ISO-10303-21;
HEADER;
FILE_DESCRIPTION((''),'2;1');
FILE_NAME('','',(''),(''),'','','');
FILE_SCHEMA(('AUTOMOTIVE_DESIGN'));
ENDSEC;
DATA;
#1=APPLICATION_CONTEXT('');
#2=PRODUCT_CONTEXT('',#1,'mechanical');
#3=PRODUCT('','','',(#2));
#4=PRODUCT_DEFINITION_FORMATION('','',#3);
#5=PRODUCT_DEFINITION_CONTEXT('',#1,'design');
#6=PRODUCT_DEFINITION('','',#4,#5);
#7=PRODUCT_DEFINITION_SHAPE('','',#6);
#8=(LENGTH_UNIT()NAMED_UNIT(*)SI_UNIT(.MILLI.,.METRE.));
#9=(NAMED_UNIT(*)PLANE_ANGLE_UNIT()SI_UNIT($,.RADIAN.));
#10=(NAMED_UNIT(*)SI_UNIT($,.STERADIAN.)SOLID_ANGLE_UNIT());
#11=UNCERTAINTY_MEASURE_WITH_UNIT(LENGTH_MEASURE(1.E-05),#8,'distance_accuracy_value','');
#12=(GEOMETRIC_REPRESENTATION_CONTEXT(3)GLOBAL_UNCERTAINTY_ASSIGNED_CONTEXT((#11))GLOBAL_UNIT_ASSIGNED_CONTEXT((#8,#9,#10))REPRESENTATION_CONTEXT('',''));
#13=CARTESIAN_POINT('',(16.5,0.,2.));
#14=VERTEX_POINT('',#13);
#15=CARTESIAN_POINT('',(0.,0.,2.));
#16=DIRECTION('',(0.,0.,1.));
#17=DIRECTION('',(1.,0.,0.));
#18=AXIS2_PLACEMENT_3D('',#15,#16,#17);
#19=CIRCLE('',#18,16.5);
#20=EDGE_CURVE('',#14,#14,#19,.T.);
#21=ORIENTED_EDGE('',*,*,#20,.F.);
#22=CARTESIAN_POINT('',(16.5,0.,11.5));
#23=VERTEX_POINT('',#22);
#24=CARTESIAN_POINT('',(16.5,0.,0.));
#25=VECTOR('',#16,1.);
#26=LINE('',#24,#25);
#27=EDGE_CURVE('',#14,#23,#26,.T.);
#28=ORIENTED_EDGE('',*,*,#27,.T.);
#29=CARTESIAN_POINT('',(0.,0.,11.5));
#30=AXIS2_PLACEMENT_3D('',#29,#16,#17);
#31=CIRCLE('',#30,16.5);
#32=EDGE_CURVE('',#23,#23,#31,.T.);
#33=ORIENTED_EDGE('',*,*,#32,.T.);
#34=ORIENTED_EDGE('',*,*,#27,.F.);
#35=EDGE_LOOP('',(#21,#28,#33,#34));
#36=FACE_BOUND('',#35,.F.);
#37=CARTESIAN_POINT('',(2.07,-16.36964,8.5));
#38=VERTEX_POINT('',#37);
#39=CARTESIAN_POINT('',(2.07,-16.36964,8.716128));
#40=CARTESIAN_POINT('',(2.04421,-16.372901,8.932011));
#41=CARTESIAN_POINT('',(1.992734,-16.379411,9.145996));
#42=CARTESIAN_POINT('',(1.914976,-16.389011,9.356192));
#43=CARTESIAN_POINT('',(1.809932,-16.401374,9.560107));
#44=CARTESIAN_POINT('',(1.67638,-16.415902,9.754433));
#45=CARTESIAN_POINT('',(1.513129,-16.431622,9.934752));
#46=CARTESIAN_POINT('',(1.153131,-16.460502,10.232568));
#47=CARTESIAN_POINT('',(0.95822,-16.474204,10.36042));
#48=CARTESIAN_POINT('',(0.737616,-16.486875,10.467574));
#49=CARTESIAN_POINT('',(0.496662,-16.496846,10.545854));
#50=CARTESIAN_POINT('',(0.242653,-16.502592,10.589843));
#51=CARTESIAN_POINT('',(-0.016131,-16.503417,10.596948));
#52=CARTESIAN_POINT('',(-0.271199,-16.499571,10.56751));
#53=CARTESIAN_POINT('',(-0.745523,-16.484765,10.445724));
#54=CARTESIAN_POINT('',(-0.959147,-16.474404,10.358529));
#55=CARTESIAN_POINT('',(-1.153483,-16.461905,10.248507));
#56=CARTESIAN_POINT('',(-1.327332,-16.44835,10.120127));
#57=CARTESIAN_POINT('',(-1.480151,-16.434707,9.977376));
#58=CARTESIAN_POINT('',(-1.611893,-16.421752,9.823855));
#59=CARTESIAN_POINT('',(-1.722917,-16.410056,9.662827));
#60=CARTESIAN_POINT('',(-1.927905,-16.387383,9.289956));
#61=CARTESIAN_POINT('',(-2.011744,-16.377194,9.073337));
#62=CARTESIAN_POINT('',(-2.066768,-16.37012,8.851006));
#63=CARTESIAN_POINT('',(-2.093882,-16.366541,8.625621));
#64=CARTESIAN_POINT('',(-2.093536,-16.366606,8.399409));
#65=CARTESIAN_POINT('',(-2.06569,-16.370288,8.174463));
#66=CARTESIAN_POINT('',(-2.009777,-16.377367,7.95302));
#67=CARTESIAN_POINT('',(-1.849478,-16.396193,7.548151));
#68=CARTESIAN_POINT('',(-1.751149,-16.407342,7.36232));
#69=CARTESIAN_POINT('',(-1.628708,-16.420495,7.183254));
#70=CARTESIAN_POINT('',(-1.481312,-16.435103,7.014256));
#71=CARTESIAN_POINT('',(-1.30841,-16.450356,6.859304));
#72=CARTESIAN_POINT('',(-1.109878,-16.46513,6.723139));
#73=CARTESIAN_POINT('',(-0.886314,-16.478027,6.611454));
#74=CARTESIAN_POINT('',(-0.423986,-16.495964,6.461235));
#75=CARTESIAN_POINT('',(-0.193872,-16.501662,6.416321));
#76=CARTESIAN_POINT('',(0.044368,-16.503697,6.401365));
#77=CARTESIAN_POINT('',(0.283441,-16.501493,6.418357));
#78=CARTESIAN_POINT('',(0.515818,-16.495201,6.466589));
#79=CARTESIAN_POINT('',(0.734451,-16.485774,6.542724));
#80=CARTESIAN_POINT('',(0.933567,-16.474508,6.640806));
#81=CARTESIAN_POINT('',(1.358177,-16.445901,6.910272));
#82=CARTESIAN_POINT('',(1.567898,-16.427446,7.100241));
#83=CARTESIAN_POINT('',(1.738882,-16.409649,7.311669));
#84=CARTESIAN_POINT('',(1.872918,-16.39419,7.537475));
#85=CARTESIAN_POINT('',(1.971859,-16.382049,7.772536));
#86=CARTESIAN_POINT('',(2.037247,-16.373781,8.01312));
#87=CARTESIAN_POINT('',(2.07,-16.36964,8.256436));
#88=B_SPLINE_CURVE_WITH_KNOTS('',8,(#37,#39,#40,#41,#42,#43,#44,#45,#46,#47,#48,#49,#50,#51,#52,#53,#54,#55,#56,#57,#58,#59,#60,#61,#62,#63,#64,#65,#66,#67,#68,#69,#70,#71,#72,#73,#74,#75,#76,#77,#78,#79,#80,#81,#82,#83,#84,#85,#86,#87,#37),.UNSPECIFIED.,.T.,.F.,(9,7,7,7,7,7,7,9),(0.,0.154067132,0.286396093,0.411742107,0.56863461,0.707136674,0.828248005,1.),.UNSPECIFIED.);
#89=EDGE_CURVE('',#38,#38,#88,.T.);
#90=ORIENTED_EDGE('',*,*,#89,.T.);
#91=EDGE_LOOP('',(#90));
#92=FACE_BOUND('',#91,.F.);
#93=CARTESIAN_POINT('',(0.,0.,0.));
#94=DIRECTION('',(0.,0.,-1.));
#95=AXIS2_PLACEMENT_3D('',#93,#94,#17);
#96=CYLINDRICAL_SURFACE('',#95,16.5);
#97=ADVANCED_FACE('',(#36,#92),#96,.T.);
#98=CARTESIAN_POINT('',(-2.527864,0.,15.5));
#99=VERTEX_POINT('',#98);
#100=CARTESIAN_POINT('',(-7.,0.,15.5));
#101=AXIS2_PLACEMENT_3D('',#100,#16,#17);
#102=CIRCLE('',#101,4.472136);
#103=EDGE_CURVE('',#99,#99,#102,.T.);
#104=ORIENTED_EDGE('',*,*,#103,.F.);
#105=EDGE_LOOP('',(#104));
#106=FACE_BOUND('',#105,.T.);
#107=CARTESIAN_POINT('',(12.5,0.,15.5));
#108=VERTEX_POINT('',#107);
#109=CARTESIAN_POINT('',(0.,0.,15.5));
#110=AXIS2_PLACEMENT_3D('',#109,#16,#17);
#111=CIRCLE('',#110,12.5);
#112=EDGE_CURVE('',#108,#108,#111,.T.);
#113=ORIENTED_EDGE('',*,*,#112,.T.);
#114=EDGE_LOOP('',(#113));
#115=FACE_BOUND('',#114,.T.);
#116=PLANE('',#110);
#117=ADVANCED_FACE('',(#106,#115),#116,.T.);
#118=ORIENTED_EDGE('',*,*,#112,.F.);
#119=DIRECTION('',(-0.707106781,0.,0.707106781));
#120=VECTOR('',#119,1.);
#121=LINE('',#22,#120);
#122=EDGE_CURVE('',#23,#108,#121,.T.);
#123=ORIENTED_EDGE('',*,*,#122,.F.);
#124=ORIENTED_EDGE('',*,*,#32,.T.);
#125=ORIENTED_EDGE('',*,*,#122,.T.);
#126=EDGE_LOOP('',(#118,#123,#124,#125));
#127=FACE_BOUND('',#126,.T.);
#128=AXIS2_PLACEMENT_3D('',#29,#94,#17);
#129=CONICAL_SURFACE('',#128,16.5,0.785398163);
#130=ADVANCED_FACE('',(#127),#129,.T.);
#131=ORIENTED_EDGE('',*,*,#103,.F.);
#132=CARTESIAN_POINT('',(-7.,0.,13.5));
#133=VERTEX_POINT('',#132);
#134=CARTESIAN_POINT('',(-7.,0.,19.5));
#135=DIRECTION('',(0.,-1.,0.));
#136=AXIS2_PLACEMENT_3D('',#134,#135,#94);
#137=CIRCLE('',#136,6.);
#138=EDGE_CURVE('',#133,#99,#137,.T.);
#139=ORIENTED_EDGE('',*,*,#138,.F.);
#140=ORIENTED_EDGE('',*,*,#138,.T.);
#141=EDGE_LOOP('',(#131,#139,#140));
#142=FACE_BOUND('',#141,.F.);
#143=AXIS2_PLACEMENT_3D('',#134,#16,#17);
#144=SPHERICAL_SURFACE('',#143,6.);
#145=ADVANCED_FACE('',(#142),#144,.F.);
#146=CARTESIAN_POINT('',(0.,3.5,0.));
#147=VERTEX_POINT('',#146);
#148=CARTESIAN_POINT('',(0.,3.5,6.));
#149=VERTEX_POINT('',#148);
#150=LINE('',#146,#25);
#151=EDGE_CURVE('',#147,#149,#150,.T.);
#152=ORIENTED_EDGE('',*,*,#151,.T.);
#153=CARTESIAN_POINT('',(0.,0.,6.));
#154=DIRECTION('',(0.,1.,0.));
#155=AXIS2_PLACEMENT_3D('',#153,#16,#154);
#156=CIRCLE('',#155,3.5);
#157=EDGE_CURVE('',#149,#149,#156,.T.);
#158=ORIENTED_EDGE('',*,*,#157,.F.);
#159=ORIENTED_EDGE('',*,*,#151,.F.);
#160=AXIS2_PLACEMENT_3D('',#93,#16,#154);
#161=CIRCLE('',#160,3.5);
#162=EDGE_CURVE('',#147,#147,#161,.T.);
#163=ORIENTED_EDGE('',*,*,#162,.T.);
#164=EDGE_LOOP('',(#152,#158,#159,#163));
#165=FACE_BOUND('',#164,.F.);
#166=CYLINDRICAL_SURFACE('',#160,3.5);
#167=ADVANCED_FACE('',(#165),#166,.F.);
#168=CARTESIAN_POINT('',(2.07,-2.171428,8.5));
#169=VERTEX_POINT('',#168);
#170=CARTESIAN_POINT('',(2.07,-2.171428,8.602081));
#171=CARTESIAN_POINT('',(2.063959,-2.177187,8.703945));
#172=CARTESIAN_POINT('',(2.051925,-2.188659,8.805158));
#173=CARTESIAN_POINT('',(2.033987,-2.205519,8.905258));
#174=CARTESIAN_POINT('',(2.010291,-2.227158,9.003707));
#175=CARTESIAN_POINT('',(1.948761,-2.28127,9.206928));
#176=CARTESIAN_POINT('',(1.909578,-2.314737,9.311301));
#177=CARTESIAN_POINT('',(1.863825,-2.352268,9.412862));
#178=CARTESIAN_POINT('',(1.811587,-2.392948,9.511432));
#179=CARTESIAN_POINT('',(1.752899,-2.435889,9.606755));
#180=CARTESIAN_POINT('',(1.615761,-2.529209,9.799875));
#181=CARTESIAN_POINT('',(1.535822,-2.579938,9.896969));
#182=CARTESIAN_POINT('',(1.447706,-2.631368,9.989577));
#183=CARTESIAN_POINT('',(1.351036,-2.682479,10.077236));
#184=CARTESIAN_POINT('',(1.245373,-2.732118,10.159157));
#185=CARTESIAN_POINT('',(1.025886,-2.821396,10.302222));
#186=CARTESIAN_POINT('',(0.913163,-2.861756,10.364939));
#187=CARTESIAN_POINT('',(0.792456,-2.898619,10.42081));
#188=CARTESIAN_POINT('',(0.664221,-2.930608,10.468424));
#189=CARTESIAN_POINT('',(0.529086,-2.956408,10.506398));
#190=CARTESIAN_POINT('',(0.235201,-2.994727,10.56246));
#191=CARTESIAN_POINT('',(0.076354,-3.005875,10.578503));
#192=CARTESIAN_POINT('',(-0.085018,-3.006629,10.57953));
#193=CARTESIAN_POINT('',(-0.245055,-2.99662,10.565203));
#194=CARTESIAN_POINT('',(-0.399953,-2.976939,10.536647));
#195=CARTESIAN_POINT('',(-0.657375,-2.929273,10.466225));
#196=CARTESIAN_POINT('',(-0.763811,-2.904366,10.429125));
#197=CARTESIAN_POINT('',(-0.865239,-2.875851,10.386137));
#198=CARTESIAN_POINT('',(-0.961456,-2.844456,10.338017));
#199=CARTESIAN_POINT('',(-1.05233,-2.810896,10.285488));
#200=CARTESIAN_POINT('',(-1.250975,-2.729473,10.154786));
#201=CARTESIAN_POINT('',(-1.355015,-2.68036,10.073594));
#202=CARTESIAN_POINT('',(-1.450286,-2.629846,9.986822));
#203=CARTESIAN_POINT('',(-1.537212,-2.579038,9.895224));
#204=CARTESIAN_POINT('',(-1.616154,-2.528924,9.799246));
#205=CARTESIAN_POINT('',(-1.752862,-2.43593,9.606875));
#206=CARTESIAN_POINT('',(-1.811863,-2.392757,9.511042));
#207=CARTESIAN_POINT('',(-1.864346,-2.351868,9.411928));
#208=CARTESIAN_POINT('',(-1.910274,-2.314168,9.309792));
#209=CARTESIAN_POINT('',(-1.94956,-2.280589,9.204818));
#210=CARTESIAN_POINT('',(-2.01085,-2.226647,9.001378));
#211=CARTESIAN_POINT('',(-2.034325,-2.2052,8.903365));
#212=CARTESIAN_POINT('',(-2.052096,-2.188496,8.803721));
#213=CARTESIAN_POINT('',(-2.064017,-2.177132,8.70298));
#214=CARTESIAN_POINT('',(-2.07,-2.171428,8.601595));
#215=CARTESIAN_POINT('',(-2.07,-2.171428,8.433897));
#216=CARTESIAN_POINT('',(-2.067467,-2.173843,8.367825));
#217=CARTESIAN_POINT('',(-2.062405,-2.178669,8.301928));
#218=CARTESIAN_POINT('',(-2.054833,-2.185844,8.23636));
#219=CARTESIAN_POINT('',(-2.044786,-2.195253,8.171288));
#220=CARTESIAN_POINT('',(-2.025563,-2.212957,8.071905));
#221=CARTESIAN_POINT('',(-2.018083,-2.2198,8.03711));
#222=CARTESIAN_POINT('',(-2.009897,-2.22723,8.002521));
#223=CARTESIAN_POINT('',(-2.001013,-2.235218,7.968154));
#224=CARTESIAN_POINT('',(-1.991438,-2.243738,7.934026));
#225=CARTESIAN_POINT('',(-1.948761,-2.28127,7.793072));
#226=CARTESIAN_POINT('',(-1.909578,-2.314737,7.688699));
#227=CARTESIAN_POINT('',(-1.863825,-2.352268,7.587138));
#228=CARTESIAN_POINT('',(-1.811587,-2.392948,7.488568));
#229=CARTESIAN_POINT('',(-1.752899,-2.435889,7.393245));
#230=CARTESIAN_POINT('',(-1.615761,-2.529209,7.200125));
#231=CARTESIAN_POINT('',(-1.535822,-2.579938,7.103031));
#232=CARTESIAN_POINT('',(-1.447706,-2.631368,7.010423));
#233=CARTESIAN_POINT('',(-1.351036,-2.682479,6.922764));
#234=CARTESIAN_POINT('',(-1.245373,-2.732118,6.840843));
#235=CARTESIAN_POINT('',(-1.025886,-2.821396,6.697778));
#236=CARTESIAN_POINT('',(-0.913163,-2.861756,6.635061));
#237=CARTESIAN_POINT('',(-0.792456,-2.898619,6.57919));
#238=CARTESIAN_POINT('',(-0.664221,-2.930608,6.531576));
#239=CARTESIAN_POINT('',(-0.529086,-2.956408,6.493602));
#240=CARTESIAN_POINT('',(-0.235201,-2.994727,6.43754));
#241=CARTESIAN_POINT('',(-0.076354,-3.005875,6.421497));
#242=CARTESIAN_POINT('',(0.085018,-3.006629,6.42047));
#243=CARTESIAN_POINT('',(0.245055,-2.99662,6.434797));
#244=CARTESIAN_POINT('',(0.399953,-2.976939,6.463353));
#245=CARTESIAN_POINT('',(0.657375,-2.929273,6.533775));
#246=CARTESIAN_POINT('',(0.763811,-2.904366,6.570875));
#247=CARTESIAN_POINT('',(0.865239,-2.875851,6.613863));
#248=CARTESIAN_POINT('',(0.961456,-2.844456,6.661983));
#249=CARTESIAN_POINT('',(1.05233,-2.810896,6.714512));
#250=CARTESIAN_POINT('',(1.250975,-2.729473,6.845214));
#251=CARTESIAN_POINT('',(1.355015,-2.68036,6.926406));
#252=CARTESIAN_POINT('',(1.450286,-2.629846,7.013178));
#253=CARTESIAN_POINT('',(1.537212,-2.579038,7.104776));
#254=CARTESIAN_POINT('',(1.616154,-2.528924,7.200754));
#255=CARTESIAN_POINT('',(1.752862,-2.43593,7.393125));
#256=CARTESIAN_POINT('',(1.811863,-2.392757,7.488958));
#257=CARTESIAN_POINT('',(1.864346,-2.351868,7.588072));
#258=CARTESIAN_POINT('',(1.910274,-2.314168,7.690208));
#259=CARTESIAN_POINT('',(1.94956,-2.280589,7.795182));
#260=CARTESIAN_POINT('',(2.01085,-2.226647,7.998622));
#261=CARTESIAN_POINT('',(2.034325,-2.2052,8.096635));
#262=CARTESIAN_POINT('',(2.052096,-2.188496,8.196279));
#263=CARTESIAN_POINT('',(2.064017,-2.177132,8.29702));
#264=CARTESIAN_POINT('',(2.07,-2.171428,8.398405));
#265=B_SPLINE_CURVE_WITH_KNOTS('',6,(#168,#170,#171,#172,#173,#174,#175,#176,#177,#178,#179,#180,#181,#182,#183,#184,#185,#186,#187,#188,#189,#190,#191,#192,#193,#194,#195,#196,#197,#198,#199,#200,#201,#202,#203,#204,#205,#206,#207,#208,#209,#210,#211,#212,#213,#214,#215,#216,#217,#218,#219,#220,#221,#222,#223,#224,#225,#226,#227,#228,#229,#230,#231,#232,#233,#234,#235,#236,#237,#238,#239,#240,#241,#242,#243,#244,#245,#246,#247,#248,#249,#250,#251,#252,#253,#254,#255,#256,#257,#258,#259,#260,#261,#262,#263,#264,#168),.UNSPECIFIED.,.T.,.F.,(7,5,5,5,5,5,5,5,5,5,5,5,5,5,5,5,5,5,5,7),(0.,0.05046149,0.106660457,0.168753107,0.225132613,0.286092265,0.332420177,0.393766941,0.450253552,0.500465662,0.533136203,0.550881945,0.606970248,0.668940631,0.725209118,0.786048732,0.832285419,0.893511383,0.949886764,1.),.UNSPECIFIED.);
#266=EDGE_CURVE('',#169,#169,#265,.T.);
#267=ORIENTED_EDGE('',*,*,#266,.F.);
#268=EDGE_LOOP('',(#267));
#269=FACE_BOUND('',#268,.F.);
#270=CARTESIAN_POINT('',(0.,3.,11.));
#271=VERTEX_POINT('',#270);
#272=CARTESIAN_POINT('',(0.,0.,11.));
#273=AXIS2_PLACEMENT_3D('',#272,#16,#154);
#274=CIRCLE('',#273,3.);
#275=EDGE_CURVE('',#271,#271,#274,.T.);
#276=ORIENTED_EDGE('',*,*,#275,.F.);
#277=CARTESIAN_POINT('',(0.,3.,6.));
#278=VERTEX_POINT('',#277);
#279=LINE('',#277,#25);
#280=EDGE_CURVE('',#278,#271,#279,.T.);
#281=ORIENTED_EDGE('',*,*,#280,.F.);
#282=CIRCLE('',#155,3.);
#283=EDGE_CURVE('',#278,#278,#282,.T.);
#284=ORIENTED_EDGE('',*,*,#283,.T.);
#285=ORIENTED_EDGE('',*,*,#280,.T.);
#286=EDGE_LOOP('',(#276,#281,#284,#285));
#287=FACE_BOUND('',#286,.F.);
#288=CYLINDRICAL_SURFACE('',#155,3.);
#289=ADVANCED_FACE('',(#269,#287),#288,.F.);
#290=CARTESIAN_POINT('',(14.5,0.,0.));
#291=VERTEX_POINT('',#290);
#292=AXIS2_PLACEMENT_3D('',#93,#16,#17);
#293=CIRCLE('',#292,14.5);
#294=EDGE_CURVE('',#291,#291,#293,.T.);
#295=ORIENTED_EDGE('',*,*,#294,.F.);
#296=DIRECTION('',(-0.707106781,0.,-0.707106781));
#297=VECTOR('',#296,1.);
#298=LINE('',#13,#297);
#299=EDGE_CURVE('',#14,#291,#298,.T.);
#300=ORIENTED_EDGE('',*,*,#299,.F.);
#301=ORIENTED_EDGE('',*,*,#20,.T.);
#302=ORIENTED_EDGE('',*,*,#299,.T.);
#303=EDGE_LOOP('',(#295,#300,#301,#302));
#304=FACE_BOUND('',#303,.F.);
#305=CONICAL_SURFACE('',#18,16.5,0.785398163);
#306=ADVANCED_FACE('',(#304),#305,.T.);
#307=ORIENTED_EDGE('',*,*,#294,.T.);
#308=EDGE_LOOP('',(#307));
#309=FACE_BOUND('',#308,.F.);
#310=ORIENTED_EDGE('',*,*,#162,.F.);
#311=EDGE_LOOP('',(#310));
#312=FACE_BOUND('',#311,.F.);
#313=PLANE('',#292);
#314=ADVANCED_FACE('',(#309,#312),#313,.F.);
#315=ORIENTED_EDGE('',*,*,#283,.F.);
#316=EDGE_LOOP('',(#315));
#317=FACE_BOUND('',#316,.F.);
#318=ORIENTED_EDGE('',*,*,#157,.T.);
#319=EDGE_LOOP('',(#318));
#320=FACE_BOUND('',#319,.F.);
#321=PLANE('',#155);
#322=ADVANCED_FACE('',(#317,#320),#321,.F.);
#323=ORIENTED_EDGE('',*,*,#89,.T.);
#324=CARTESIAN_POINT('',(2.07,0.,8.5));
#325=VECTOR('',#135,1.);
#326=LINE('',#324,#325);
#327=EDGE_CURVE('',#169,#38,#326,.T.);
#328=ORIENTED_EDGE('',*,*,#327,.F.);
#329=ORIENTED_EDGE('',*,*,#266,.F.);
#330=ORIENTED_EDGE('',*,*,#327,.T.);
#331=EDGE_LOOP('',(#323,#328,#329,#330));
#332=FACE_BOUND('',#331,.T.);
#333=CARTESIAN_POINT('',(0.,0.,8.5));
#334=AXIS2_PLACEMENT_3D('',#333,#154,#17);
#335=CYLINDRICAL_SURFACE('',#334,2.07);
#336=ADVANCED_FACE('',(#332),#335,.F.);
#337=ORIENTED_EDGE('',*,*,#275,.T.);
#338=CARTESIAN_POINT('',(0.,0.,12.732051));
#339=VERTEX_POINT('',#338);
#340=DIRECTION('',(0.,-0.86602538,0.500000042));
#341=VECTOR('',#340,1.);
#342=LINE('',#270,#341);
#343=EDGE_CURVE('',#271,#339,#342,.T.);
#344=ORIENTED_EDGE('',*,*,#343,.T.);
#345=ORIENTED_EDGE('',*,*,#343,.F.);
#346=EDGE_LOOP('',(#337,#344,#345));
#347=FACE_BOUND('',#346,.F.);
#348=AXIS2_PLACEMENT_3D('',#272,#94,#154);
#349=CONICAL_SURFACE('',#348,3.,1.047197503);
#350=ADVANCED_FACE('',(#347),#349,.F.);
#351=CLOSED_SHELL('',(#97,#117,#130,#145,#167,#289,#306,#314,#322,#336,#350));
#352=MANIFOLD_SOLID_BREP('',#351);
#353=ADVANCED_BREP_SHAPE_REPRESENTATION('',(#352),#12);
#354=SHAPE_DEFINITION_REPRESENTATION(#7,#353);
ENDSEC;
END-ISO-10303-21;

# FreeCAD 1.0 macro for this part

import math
import FreeCAD as App
import Part
import Sketcher

V = App.Vector
Q = App.Units.Quantity


def edges_at(feature, points):
    """Names of the edges that pass closest to the given points."""
    edges = feature.Shape.Edges
    near = lambda p: min(range(len(edges)), key=lambda i: edges[i].distToShape(Part.Vertex(*p))[0])
    return sorted({f"Edge{near(p) + 1}" for p in points})


def add_polygon(sketch, points):
    """Adds a closed chain of lines whose ends are joined by coincident constraints."""
    first, n = sketch.GeometryCount, len(points)
    for a, b in zip(points, points[1:] + points[:1]):
        sketch.addGeometry(Part.LineSegment(App.Vector(*a, 0), App.Vector(*b, 0)), False)
    for i in range(n):
        sketch.addConstraint(Sketcher.Constraint("Coincident", first + i, 2, first + (i + 1) % n, 1))

doc = App.newDocument("Part")
body = doc.addObject("PartDesign::Body", "Body")

sketch1 = body.newObject("Sketcher::SketchObject", "Sketch")
sketch1.AttachmentSupport = (doc.getObject("XZ_Plane"), [""])
sketch1.MapMode = "FlatFace"
sketch1.addGeometry(Part.ArcOfCircle(Part.Circle(V(-7, 20, 0), V(0, 0, 1), 6), math.radians(-90), math.radians(90)), False)
sketch1.addGeometry(Part.LineSegment(V(-7, 26, 0), V(-7, 14, 0)), False)
sketch1.addGeometry(Part.LineSegment(V(-7, 14, 0), V(-7, 26, 0)), True)
sketch1.addConstraint(Sketcher.Constraint("Coincident", 0, 1, 1, 2))
sketch1.addConstraint(Sketcher.Constraint("Coincident", 1, 1, 0, 2))
sketch1.addConstraint(Sketcher.Constraint("Vertical", 1))
sketch1.addConstraint(Sketcher.Constraint("Vertical", 2))
sketch1.addConstraint(Sketcher.Constraint("Coincident", 2, 1, 0, 1))
sketch1.addConstraint(Sketcher.Constraint("Equal", 1, 2))
sketch1.addConstraint(Sketcher.Constraint("Radius", 0, 6.0))
sketch1.addConstraint(Sketcher.Constraint("DistanceX", 0, 3, -1, 1, 7.0))
sketch1.addConstraint(Sketcher.Constraint("DistanceX", 0, 1, -1, 1, 7.0))
sketch1.addConstraint(Sketcher.Constraint("DistanceY", -1, 1, 0, 3, 19.5))
revolution = body.newObject("PartDesign::Revolution", "Revolution")
revolution.Profile = sketch1
revolution.ReferenceAxis = (sketch1, ["Axis0"])
revolution.Angle = 360
body2 = doc.addObject("PartDesign::Body", "Body001")

sketch2 = body2.newObject("Sketcher::SketchObject", "Sketch001")
sketch2.AttachmentSupport = (doc.getObject("XZ_Plane001"), [""])
sketch2.MapMode = "FlatFace"
sketch2.addGeometry(Part.Circle(V(0, 8.5, 0), V(0, 0, 1), 2.1), False)
sketch2.addConstraint(Sketcher.Constraint("PointOnObject", 0, 3, -2))
sketch2.addConstraint(Sketcher.Constraint("Diameter", 0, 4.14))
sketch2.addConstraint(Sketcher.Constraint("DistanceY", -1, 1, 0, 3, 8.5))
pad1 = body2.newObject("PartDesign::Pad", "Pad")
pad1.Profile = sketch2
pad1.Length = 20
body3 = doc.addObject("PartDesign::Body", "Body002")

sketch3 = body3.newObject("Sketcher::SketchObject", "Sketch002")
sketch3.AttachmentSupport = (doc.getObject("YZ_Plane002"), [""])
sketch3.MapMode = "FlatFace"
add_polygon(sketch3, [(3.5, 0), (3.5, 6), (3, 6), (3, 11), (0, 12.7), (0, 0)])
sketch3.addConstraint(Sketcher.Constraint("Vertical", 0))
sketch3.addConstraint(Sketcher.Constraint("Horizontal", 1))
sketch3.addConstraint(Sketcher.Constraint("Vertical", 2))
sketch3.addConstraint(Sketcher.Constraint("Vertical", 4))
sketch3.addConstraint(Sketcher.Constraint("Horizontal", 5))
sketch3.addConstraint(Sketcher.Constraint("Coincident", 4, 2, -1, 1))
sketch3.addConstraint(Sketcher.Constraint("DistanceY", 0, 1, 0, 2, 6.0))
sketch3.addConstraint(Sketcher.Constraint("DistanceY", 2, 1, 2, 2, 5.0))
sketch3.addConstraint(Sketcher.Constraint("Angle", 3, Q("149.999997 deg")))
sketch3.addConstraint(Sketcher.Constraint("DistanceX", 1, 2, 1, 1, 0.5))
sketch3.addConstraint(Sketcher.Constraint("DistanceX", 5, 1, 5, 2, 3.5))
revolution2 = body3.newObject("PartDesign::Revolution", "Revolution001")
revolution2.Profile = sketch3
revolution2.ReferenceAxis = (sketch3, ["V_Axis"])
revolution2.Angle = 360
body4 = doc.addObject("PartDesign::Body", "Body003")

sketch4 = body4.newObject("Sketcher::SketchObject", "Sketch003")
sketch4.AttachmentSupport = (doc.getObject("XY_Plane003"), [""])
sketch4.MapMode = "FlatFace"
sketch4.addGeometry(Part.Circle(V(0, 0, 0), V(0, 0, 1), 16), False)
sketch4.addConstraint(Sketcher.Constraint("Coincident", 0, 3, -1, 1))
sketch4.addConstraint(Sketcher.Constraint("Diameter", 0, 33.0))
pad2 = body4.newObject("PartDesign::Pad", "Pad001")
pad2.Profile = sketch4
pad2.Length = 15.5
doc.recompute()

chamfer = body4.newObject("PartDesign::Chamfer", "Chamfer")
chamfer.Base = (pad2, edges_at(pad2, [(-16.5, 0, 15.5)]))
chamfer.Size = 4
doc.recompute()

chamfer2 = body4.newObject("PartDesign::Chamfer", "Chamfer001")
chamfer2.Base = (chamfer, edges_at(chamfer, [(-16.5, 0, 0)]))
chamfer2.Size = 2
doc.recompute()

boolean = body4.newObject("PartDesign::Boolean", "Boolean")
boolean.Type = "Cut"
boolean.addObjects([body3])
doc.recompute()

boolean2 = body4.newObject("PartDesign::Boolean", "Boolean001")
boolean2.Type = "Cut"
boolean2.addObjects([body2])
doc.recompute()

boolean3 = body4.newObject("PartDesign::Boolean", "Boolean002")
boolean3.Type = "Cut"
boolean3.addObjects([body])

doc.recompute()
